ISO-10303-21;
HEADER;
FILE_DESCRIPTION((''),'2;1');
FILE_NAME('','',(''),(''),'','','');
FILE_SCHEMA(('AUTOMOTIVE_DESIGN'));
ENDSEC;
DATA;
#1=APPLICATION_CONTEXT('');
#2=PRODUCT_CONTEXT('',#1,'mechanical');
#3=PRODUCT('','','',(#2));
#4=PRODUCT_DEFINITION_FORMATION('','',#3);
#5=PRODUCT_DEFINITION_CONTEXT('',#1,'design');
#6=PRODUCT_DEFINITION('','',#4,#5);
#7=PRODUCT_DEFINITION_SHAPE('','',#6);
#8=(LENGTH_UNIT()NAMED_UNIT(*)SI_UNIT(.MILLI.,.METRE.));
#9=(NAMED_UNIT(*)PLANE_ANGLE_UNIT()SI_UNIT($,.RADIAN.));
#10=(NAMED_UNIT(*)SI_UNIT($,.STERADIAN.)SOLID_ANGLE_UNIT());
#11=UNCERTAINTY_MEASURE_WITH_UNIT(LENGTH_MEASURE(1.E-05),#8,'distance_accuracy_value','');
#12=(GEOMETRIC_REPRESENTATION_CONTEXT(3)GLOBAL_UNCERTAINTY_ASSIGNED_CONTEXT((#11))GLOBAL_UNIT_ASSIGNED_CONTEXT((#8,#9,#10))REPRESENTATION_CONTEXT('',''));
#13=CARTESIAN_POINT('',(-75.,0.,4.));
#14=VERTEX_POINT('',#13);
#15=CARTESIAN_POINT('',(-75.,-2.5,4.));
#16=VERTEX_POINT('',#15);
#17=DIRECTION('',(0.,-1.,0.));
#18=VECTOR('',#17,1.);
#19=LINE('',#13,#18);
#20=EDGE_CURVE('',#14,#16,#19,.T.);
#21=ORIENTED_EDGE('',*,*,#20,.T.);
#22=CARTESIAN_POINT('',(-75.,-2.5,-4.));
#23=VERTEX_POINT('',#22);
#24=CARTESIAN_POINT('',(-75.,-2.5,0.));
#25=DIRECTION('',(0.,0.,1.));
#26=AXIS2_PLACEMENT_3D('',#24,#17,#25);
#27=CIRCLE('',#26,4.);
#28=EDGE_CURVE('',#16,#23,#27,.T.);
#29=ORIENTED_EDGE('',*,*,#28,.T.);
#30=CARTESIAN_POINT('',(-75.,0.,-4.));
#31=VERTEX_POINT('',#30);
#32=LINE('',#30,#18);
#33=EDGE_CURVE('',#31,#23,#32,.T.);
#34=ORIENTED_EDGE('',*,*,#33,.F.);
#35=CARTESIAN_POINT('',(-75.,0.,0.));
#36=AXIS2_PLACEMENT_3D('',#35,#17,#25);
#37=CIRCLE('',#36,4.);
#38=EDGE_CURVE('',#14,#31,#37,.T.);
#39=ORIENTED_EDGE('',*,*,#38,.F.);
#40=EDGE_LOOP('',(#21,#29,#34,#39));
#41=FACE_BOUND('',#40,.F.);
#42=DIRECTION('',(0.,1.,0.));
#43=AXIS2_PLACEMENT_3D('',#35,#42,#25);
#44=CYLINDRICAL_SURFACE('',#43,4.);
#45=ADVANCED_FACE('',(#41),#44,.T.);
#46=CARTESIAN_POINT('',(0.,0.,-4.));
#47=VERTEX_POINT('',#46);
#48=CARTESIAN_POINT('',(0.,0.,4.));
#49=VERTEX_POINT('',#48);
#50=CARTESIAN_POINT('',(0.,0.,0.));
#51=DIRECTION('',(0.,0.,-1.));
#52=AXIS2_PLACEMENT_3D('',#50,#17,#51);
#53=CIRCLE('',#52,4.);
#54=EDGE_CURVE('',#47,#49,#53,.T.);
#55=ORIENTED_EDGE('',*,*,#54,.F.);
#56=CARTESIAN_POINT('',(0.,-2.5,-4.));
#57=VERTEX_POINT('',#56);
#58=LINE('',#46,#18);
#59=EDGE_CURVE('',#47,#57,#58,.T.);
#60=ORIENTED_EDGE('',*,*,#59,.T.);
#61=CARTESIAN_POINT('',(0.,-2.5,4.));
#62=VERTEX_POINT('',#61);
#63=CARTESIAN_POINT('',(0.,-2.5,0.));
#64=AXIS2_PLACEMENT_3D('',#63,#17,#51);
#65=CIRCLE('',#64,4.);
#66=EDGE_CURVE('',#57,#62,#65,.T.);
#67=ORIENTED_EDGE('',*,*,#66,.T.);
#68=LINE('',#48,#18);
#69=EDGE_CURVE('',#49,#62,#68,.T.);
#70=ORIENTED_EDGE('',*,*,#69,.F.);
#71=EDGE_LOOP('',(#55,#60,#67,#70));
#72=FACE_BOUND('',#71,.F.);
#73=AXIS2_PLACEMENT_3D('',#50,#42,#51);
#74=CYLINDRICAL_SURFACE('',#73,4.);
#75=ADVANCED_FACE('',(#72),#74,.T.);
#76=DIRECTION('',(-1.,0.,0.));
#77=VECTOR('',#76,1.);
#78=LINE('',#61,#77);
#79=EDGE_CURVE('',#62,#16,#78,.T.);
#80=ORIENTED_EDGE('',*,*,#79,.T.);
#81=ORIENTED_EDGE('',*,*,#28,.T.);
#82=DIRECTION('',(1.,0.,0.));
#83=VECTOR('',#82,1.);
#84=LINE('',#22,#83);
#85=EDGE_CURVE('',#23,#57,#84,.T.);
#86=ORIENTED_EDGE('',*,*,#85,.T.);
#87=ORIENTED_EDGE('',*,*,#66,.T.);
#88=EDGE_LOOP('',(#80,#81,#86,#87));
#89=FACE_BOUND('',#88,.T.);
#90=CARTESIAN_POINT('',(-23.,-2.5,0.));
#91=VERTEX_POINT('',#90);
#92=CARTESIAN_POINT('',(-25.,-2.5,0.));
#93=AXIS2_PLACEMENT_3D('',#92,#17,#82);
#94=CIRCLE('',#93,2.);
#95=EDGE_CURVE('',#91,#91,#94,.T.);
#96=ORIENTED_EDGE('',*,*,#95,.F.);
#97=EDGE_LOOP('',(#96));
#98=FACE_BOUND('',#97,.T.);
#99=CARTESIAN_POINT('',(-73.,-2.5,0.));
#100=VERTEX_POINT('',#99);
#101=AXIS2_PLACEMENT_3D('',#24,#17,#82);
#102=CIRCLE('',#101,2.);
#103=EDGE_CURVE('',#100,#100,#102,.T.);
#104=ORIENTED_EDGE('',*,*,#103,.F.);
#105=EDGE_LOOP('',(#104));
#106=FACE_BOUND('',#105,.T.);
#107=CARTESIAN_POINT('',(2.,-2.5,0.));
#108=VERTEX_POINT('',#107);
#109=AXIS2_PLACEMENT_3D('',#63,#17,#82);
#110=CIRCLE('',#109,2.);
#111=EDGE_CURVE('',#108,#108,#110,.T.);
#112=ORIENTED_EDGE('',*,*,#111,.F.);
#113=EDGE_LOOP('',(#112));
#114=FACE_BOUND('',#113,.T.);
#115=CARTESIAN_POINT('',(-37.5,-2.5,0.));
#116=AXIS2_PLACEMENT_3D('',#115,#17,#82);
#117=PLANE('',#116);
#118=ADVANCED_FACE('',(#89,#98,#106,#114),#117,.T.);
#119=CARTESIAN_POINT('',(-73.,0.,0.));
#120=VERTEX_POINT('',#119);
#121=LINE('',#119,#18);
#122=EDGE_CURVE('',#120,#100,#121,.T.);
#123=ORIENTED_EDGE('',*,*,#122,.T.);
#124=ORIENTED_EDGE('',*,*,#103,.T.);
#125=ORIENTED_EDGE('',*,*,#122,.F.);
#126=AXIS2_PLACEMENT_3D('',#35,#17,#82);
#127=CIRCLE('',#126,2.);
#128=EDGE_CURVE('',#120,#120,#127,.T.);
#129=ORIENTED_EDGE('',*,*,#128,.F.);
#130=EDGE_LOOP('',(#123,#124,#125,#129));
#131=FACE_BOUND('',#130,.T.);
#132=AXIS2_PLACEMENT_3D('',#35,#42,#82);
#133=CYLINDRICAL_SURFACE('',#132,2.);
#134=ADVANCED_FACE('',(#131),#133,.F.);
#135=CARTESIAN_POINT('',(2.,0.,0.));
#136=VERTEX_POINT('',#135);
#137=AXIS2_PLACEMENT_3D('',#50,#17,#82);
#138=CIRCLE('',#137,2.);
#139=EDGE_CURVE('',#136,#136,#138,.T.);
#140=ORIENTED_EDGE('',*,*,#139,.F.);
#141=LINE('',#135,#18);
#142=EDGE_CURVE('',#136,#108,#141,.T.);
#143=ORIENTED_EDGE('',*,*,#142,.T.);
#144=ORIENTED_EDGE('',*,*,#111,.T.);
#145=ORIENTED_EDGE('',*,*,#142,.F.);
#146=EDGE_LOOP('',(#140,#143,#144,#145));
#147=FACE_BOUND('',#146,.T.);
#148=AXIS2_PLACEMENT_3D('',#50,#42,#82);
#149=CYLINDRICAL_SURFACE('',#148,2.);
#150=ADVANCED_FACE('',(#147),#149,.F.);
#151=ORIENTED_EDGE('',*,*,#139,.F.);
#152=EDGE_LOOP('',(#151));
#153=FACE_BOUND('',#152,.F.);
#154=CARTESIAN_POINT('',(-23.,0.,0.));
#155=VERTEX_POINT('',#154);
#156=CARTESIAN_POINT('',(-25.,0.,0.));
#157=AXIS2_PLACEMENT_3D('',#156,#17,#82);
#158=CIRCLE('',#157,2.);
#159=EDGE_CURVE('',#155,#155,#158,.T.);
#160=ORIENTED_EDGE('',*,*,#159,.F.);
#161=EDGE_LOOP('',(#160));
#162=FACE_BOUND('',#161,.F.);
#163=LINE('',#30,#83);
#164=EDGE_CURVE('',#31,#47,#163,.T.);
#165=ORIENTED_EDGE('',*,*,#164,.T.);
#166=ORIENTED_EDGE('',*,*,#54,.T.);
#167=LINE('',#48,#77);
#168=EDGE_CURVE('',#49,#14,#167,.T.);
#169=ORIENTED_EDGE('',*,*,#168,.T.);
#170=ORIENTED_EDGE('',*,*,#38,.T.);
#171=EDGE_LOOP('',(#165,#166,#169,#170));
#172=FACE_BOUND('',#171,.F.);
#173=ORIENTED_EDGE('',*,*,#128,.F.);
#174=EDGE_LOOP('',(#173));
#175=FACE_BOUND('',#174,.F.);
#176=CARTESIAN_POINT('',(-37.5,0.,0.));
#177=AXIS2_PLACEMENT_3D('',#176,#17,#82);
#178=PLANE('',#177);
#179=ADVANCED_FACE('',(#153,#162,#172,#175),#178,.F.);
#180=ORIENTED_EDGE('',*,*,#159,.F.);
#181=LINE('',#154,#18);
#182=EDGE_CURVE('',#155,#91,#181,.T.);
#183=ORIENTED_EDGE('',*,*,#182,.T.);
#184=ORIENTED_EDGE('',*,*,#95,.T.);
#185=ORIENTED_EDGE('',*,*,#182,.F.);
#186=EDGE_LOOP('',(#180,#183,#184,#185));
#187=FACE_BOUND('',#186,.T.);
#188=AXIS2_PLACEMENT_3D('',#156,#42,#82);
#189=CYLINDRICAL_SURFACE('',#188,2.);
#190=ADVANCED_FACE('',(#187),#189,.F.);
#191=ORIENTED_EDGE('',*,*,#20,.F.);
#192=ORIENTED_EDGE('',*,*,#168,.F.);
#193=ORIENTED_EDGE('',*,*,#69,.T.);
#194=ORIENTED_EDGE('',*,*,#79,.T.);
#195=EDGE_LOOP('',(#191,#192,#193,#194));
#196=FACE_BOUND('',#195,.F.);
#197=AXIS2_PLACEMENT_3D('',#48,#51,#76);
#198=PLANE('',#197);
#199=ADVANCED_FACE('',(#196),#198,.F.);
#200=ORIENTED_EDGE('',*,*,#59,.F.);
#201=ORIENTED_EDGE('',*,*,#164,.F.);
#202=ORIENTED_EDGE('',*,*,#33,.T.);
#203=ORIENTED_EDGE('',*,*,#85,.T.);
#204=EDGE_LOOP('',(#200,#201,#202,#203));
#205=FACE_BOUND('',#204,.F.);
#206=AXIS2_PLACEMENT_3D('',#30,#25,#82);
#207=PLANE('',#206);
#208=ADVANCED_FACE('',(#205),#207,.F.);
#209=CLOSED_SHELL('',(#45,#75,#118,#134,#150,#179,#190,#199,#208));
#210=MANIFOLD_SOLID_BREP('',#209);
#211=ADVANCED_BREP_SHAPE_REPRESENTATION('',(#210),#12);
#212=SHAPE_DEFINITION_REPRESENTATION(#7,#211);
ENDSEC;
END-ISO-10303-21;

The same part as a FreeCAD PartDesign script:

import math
import FreeCAD as App
import Part
import Sketcher
from FreeCAD import Vector
Q = App.Units.Quantity

doc = App.newDocument("Part")
params = doc.addObject("Spreadsheet::Sheet", "Params")
for row, (alias, value) in enumerate([
    ("sketch1_diameter", "4 mm"),
    ("sketch1_radius", "4 mm"),
    ("sketch1_width", "75 mm"),
    ("pad1_length", "2.5 mm"),
], start=1):
    params.set(f"A{row}", alias)
    params.set(f"B{row}", "=" + value)
    params.setAlias(f"B{row}", alias)

body = doc.addObject("PartDesign::Body", "Body")

sketch1 = body.newObject("Sketcher::SketchObject", "Sketch")
sketch1.AttachmentSupport = (doc.getObject("XZ_Plane"), [""])
sketch1.MapMode = "FlatFace"
sketch1.addGeometry([
    Part.LineSegment(Vector(-75, -4, 0), Vector(0, -4, 0)),
    Part.ArcOfCircle(Part.Circle(Vector(0, 0, 0), Vector(0, 0, 1), 4), math.radians(-90), math.radians(90)),
    Part.LineSegment(Vector(0, 4, 0), Vector(-75, 4, 0)),
    Part.ArcOfCircle(Part.Circle(Vector(-75, 0, 0), Vector(0, 0, 1), 4), math.radians(90), math.radians(270)),
    Part.Circle(Vector(-75, 0, 0), Vector(0, 0, 1), 2),
    Part.Circle(Vector(-25, 0, 0), Vector(0, 0, 1), 2),
    Part.Circle(Vector(0, 0, 0), Vector(0, 0, 1), 2),
], False)
sketch1.addConstraint([
    Sketcher.Constraint("Tangent", 0, 2, 1, 1),
    Sketcher.Constraint("Tangent", 1, 2, 2, 1),
    Sketcher.Constraint("Tangent", 2, 2, 3, 1),
    Sketcher.Constraint("Tangent", 3, 2, 0, 1),
    Sketcher.Constraint("Horizontal", 0),
    Sketcher.Constraint("Horizontal", 2),
    Sketcher.Constraint("Coincident", 1, 3, -1, 1),
    Sketcher.Constraint("Coincident", 6, 3, -1, 1),
    Sketcher.Constraint("Coincident", 4, 3, 3, 3),
    Sketcher.Constraint("Equal", 4, 5),
    Sketcher.Constraint("Equal", 5, 6),
    Sketcher.Constraint("PointOnObject", 5, 3, -1),
    Sketcher.Constraint("Diameter", 4, Q("4 mm")),
    Sketcher.Constraint("Radius", 1, Q("4 mm")),
    Sketcher.Constraint("DistanceX", 0, 1, 0, 2, Q("75 mm")),
    Sketcher.Constraint("DistanceX", 5, 3, -1, 1, Q("25 mm")),
])
sketch1.setExpression("Constraints[12]", "Params.sketch1_diameter")
sketch1.setExpression("Constraints[13]", "Params.sketch1_radius")
sketch1.setExpression("Constraints[14]", "Params.sketch1_width")
pad1 = body.newObject("PartDesign::Pad", "Pad")
pad1.Profile = sketch1
pad1.setExpression("Length", "Params.pad1_length")

doc.recompute()
